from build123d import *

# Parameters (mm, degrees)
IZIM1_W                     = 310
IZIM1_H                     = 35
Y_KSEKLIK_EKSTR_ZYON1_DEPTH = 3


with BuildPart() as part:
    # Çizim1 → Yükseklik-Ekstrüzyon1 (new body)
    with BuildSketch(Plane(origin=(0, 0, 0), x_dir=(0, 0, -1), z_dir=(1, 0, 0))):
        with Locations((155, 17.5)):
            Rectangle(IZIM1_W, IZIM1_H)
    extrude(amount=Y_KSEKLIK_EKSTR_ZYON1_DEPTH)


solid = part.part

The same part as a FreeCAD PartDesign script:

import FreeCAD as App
import Part
import Sketcher
from FreeCAD import Vector
Q = App.Units.Quantity

doc = App.newDocument("Part")
body = doc.addObject("PartDesign::Body", "Body")

sketch1 = doc.addObject("Sketcher::SketchObject", "Sketch")
body.addObject(sketch1)
sketch1.AttachmentSupport = (doc.YZ_Plane, [""])
sketch1.MapMode = "FlatFace"
sketch1.addGeometry([
    Part.LineSegment(Vector(35, 0, 0), Vector(0, 0, 0)),
    Part.LineSegment(Vector(0, 0, 0), Vector(0, -310, 0)),
    Part.LineSegment(Vector(0, -310, 0), Vector(35, -310, 0)),
    Part.LineSegment(Vector(35, -310, 0), Vector(35, 0, 0)),
], False)
sketch1.addConstraint([
    Sketcher.Constraint("Coincident", 0, 2, 1, 1),
    Sketcher.Constraint("Coincident", 1, 2, 2, 1),
    Sketcher.Constraint("Coincident", 2, 2, 3, 1),
    Sketcher.Constraint("Coincident", 3, 2, 0, 1),
    Sketcher.Constraint("Horizontal", 0),
    Sketcher.Constraint("Vertical", 1),
    Sketcher.Constraint("Horizontal", 2),
    Sketcher.Constraint("Vertical", 3),
    Sketcher.Constraint("Coincident", 0, 2, -1, 1),
    Sketcher.Constraint("DistanceX", 0, 2, 0, 1, Q("35 mm")),
    Sketcher.Constraint("DistanceY", 1, 2, 1, 1, Q("310 mm")),
])
pad1 = doc.addObject("PartDesign::Pad", "Pad")
body.addObject(pad1)
pad1.Profile = sketch1
pad1.Length = 3

doc.recompute()
